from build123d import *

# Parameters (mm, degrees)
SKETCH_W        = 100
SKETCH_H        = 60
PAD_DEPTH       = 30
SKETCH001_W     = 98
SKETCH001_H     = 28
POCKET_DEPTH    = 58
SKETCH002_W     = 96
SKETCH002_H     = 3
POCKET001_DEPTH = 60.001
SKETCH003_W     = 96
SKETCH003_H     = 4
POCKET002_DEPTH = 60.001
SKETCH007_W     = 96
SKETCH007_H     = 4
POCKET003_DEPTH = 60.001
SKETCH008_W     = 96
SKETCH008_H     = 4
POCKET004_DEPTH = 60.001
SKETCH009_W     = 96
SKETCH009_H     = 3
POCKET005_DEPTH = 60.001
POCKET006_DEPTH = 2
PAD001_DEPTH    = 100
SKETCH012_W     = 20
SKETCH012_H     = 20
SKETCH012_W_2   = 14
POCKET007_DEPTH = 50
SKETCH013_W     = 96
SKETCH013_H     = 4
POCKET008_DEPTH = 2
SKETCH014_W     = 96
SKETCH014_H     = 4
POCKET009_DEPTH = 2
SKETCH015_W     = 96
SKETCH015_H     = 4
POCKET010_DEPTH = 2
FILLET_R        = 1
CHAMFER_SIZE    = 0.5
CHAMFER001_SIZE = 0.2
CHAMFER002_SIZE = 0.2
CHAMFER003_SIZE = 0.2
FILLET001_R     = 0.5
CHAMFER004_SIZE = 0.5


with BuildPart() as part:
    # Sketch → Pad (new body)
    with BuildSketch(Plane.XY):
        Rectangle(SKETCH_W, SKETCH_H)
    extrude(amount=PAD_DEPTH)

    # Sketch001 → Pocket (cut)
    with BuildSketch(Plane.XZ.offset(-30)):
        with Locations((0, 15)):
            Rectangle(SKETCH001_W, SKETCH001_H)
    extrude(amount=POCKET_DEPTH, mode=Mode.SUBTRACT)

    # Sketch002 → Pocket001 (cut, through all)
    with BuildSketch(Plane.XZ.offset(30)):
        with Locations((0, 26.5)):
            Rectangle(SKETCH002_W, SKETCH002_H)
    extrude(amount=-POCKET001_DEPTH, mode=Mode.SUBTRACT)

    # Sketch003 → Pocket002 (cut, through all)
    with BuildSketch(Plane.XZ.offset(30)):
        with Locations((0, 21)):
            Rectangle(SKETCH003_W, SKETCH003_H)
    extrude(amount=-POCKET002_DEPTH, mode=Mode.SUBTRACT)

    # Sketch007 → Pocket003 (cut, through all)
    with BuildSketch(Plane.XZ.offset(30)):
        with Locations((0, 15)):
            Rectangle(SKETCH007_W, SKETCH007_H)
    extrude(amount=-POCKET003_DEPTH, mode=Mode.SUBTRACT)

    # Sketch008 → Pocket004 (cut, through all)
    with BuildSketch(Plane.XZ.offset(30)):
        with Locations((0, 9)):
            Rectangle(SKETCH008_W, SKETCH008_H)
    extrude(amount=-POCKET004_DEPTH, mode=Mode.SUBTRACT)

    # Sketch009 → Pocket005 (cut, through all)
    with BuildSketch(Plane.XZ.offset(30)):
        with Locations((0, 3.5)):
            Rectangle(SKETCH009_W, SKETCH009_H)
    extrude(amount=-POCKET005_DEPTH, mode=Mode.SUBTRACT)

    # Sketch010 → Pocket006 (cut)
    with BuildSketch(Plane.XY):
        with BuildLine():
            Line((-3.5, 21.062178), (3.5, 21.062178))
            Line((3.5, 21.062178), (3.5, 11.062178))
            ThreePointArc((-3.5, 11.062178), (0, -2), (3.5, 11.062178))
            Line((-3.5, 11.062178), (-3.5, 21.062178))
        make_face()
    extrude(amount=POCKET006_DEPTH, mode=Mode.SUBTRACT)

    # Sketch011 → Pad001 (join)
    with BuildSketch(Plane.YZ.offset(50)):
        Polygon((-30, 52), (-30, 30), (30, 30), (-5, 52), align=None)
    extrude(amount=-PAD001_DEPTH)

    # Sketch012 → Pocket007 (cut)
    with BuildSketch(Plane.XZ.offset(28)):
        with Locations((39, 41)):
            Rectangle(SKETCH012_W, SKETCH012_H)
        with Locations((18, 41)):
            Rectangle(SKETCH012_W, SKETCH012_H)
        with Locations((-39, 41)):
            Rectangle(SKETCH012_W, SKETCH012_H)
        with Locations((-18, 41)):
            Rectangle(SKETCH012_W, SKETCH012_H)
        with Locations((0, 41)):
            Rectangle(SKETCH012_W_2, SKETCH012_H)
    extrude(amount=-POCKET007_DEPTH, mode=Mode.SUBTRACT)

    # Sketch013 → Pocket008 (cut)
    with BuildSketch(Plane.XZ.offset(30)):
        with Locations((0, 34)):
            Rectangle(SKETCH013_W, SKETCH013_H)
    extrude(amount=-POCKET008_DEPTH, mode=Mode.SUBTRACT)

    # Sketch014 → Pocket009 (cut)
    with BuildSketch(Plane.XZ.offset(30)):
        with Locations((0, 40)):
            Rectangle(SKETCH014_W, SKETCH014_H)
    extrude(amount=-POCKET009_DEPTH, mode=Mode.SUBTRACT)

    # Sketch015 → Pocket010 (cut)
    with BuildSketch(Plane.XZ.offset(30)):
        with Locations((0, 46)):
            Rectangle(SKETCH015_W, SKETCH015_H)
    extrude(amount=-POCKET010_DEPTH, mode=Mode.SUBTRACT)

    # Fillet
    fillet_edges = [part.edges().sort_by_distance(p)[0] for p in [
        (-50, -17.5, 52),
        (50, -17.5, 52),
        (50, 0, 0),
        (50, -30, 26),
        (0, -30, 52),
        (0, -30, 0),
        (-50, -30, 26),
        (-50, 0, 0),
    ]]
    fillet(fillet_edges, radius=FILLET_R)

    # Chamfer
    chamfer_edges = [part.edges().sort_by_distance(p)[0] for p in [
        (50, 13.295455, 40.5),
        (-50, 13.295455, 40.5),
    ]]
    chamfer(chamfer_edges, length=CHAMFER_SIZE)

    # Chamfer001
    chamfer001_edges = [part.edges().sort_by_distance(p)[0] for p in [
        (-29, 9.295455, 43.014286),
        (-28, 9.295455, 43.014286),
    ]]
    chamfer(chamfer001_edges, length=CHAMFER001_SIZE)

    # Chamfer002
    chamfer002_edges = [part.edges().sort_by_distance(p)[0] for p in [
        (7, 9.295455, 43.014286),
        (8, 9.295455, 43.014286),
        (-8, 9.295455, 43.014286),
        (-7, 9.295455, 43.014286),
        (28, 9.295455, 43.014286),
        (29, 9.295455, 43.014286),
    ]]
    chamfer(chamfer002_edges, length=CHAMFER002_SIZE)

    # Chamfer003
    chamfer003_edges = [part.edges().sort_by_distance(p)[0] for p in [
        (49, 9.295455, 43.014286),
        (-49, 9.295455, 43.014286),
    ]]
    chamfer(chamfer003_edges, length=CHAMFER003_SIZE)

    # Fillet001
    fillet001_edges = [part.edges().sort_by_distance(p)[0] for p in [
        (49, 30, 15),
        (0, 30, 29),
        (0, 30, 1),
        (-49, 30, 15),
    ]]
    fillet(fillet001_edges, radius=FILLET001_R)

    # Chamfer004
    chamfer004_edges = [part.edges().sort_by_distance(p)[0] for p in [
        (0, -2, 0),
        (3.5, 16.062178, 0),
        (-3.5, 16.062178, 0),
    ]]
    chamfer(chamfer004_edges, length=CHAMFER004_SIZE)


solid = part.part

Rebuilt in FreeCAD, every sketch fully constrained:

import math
import FreeCAD as App
import Part
import Sketcher
Q = App.Units.Quantity


def edges_at(feature, points):
    """Names of the edges that pass closest to the given points."""
    edges = feature.Shape.Edges
    near = lambda p: min(range(len(edges)), key=lambda i: edges[i].distToShape(Part.Vertex(*p))[0])
    return sorted({f"Edge{near(p) + 1}" for p in points})

doc = App.newDocument("Part")
body = doc.addObject("PartDesign::Body", "Body")

sketch1 = body.newObject("Sketcher::SketchObject", "Sketch")
sketch1.AttachmentSupport = (doc.getObject("XY_Plane"), [""])
sketch1.MapMode = "FlatFace"
sketch1.addGeometry([
    Part.LineSegment(App.Vector(-50, 30, 0), App.Vector(-50, -30, 0)),
    Part.LineSegment(App.Vector(-50, -30, 0), App.Vector(50, -30, 0)),
    Part.LineSegment(App.Vector(50, -30, 0), App.Vector(50, 30, 0)),
    Part.LineSegment(App.Vector(50, 30, 0), App.Vector(-50, 30, 0)),
], False)
sketch1.addConstraint([
    Sketcher.Constraint("Coincident", 0, 2, 1, 1),
    Sketcher.Constraint("Coincident", 1, 2, 2, 1),
    Sketcher.Constraint("Coincident", 2, 2, 3, 1),
    Sketcher.Constraint("Coincident", 3, 2, 0, 1),
    Sketcher.Constraint("Vertical", 0),
    Sketcher.Constraint("Horizontal", 1),
    Sketcher.Constraint("Vertical", 2),
    Sketcher.Constraint("Horizontal", 3),
    Sketcher.Constraint("Symmetric", 0, 2, 2, 2, -1, 1),
    Sketcher.Constraint("DistanceX", 1, 1, 1, 2, Q("100 mm")),
    Sketcher.Constraint("DistanceY", 0, 2, 0, 1, Q("60 mm")),
])
pad1 = body.newObject("PartDesign::Pad", "Pad")
pad1.Profile = sketch1
pad1.Length = 30

sketch2 = body.newObject("Sketcher::SketchObject", "Sketch001")
sketch2.AttachmentSupport = (doc.getObject("XZ_Plane"), [""])
sketch2.MapMode = "FlatFace"
sketch2.AttachmentOffset = App.Placement(App.Vector(0, 0, -30), App.Rotation())
sketch2.addGeometry([
    Part.LineSegment(App.Vector(-49, 29, 0), App.Vector(-49, 1, 0)),
    Part.LineSegment(App.Vector(-49, 1, 0), App.Vector(49, 1, 0)),
    Part.LineSegment(App.Vector(49, 1, 0), App.Vector(49, 29, 0)),
    Part.LineSegment(App.Vector(49, 29, 0), App.Vector(-49, 29, 0)),
], False)
sketch2.addConstraint([
    Sketcher.Constraint("Coincident", 0, 2, 1, 1),
    Sketcher.Constraint("Coincident", 1, 2, 2, 1),
    Sketcher.Constraint("Coincident", 2, 2, 3, 1),
    Sketcher.Constraint("Coincident", 3, 2, 0, 1),
    Sketcher.Constraint("Vertical", 0),
    Sketcher.Constraint("Horizontal", 1),
    Sketcher.Constraint("Vertical", 2),
    Sketcher.Constraint("Horizontal", 3),
    Sketcher.Constraint("DistanceX", 1, 1, 1, 2, Q("98 mm")),
    Sketcher.Constraint("DistanceY", 0, 2, 0, 1, Q("28 mm")),
    Sketcher.Constraint("DistanceX", 0, 2, -1, 1, Q("49 mm")),
    Sketcher.Constraint("DistanceY", -1, 1, 0, 2, Q("1 mm")),
])
pocket1 = body.newObject("PartDesign::Pocket", "Pocket")
pocket1.Profile = sketch2
pocket1.Length = 58
pocket1.Reversed = True

sketch3 = body.newObject("Sketcher::SketchObject", "Sketch002")
sketch3.AttachmentSupport = (doc.getObject("XZ_Plane"), [""])
sketch3.MapMode = "FlatFace"
sketch3.AttachmentOffset = App.Placement(App.Vector(0, 0, 30), App.Rotation())
sketch3.addGeometry([
    Part.LineSegment(App.Vector(-48, 28, 0), App.Vector(-48, 25, 0)),
    Part.LineSegment(App.Vector(-48, 25, 0), App.Vector(48, 25, 0)),
    Part.LineSegment(App.Vector(48, 25, 0), App.Vector(48, 28, 0)),
    Part.LineSegment(App.Vector(48, 28, 0), App.Vector(-48, 28, 0)),
], False)
sketch3.addConstraint([
    Sketcher.Constraint("Coincident", 0, 2, 1, 1),
    Sketcher.Constraint("Coincident", 1, 2, 2, 1),
    Sketcher.Constraint("Coincident", 2, 2, 3, 1),
    Sketcher.Constraint("Coincident", 3, 2, 0, 1),
    Sketcher.Constraint("Vertical", 0),
    Sketcher.Constraint("Horizontal", 1),
    Sketcher.Constraint("Vertical", 2),
    Sketcher.Constraint("Horizontal", 3),
    Sketcher.Constraint("DistanceX", 1, 1, 1, 2, Q("96 mm")),
    Sketcher.Constraint("DistanceY", 0, 2, 0, 1, Q("3 mm")),
    Sketcher.Constraint("DistanceX", 0, 2, -1, 1, Q("48 mm")),
    Sketcher.Constraint("DistanceY", -1, 1, 0, 2, Q("25 mm")),
])
pocket2 = body.newObject("PartDesign::Pocket", "Pocket001")
pocket2.Profile = sketch3
pocket2.Type = "ThroughAll"

sketch4 = body.newObject("Sketcher::SketchObject", "Sketch003")
sketch4.AttachmentSupport = (doc.getObject("XZ_Plane"), [""])
sketch4.MapMode = "FlatFace"
sketch4.AttachmentOffset = App.Placement(App.Vector(0, 0, 30), App.Rotation())
sketch4.addGeometry([
    Part.LineSegment(App.Vector(-48, 23, 0), App.Vector(-48, 19, 0)),
    Part.LineSegment(App.Vector(-48, 19, 0), App.Vector(48, 19, 0)),
    Part.LineSegment(App.Vector(48, 19, 0), App.Vector(48, 23, 0)),
    Part.LineSegment(App.Vector(48, 23, 0), App.Vector(-48, 23, 0)),
], False)
sketch4.addConstraint([
    Sketcher.Constraint("Coincident", 0, 2, 1, 1),
    Sketcher.Constraint("Coincident", 1, 2, 2, 1),
    Sketcher.Constraint("Coincident", 2, 2, 3, 1),
    Sketcher.Constraint("Coincident", 3, 2, 0, 1),
    Sketcher.Constraint("Vertical", 0),
    Sketcher.Constraint("Horizontal", 1),
    Sketcher.Constraint("Vertical", 2),
    Sketcher.Constraint("Horizontal", 3),
    Sketcher.Constraint("DistanceX", 1, 1, 1, 2, Q("96 mm")),
    Sketcher.Constraint("DistanceY", 0, 2, 0, 1, Q("4 mm")),
    Sketcher.Constraint("DistanceX", 0, 2, -1, 1, Q("48 mm")),
    Sketcher.Constraint("DistanceY", -1, 1, 0, 2, Q("19 mm")),
])
pocket3 = body.newObject("PartDesign::Pocket", "Pocket002")
pocket3.Profile = sketch4
pocket3.Type = "ThroughAll"

sketch5 = body.newObject("Sketcher::SketchObject", "Sketch004")
sketch5.AttachmentSupport = (doc.getObject("XZ_Plane"), [""])
sketch5.MapMode = "FlatFace"
sketch5.AttachmentOffset = App.Placement(App.Vector(0, 0, 30), App.Rotation())
sketch5.addGeometry([
    Part.LineSegment(App.Vector(-48, 17, 0), App.Vector(-48, 13, 0)),
    Part.LineSegment(App.Vector(-48, 13, 0), App.Vector(48, 13, 0)),
    Part.LineSegment(App.Vector(48, 13, 0), App.Vector(48, 17, 0)),
    Part.LineSegment(App.Vector(48, 17, 0), App.Vector(-48, 17, 0)),
], False)
sketch5.addConstraint([
    Sketcher.Constraint("Coincident", 0, 2, 1, 1),
    Sketcher.Constraint("Coincident", 1, 2, 2, 1),
    Sketcher.Constraint("Coincident", 2, 2, 3, 1),
    Sketcher.Constraint("Coincident", 3, 2, 0, 1),
    Sketcher.Constraint("Vertical", 0),
    Sketcher.Constraint("Horizontal", 1),
    Sketcher.Constraint("Vertical", 2),
    Sketcher.Constraint("Horizontal", 3),
    Sketcher.Constraint("DistanceX", 1, 1, 1, 2, Q("96 mm")),
    Sketcher.Constraint("DistanceY", 0, 2, 0, 1, Q("4 mm")),
    Sketcher.Constraint("DistanceX", 0, 2, -1, 1, Q("48 mm")),
    Sketcher.Constraint("DistanceY", -1, 1, 0, 2, Q("13 mm")),
])
pocket4 = body.newObject("PartDesign::Pocket", "Pocket003")
pocket4.Profile = sketch5
pocket4.Type = "ThroughAll"

sketch6 = body.newObject("Sketcher::SketchObject", "Sketch005")
sketch6.AttachmentSupport = (doc.getObject("XZ_Plane"), [""])
sketch6.MapMode = "FlatFace"
sketch6.AttachmentOffset = App.Placement(App.Vector(0, 0, 30), App.Rotation())
sketch6.addGeometry([
    Part.LineSegment(App.Vector(-48, 11, 0), App.Vector(-48, 7, 0)),
    Part.LineSegment(App.Vector(-48, 7, 0), App.Vector(48, 7, 0)),
    Part.LineSegment(App.Vector(48, 7, 0), App.Vector(48, 11, 0)),
    Part.LineSegment(App.Vector(48, 11, 0), App.Vector(-48, 11, 0)),
], False)
sketch6.addConstraint([
    Sketcher.Constraint("Coincident", 0, 2, 1, 1),
    Sketcher.Constraint("Coincident", 1, 2, 2, 1),
    Sketcher.Constraint("Coincident", 2, 2, 3, 1),
    Sketcher.Constraint("Coincident", 3, 2, 0, 1),
    Sketcher.Constraint("Vertical", 0),
    Sketcher.Constraint("Horizontal", 1),
    Sketcher.Constraint("Vertical", 2),
    Sketcher.Constraint("Horizontal", 3),
    Sketcher.Constraint("DistanceX", 1, 1, 1, 2, Q("96 mm")),
    Sketcher.Constraint("DistanceY", 0, 2, 0, 1, Q("4 mm")),
    Sketcher.Constraint("DistanceX", 0, 2, -1, 1, Q("48 mm")),
    Sketcher.Constraint("DistanceY", -1, 1, 0, 2, Q("7 mm")),
])
pocket5 = body.newObject("PartDesign::Pocket", "Pocket004")
pocket5.Profile = sketch6
pocket5.Type = "ThroughAll"

sketch7 = body.newObject("Sketcher::SketchObject", "Sketch006")
sketch7.AttachmentSupport = (doc.getObject("XZ_Plane"), [""])
sketch7.MapMode = "FlatFace"
sketch7.AttachmentOffset = App.Placement(App.Vector(0, 0, 30), App.Rotation())
sketch7.addGeometry([
    Part.LineSegment(App.Vector(-48, 5, 0), App.Vector(-48, 2, 0)),
    Part.LineSegment(App.Vector(-48, 2, 0), App.Vector(48, 2, 0)),
    Part.LineSegment(App.Vector(48, 2, 0), App.Vector(48, 5, 0)),
    Part.LineSegment(App.Vector(48, 5, 0), App.Vector(-48, 5, 0)),
], False)
sketch7.addConstraint([
    Sketcher.Constraint("Coincident", 0, 2, 1, 1),
    Sketcher.Constraint("Coincident", 1, 2, 2, 1),
    Sketcher.Constraint("Coincident", 2, 2, 3, 1),
    Sketcher.Constraint("Coincident", 3, 2, 0, 1),
    Sketcher.Constraint("Vertical", 0),
    Sketcher.Constraint("Horizontal", 1),
    Sketcher.Constraint("Vertical", 2),
    Sketcher.Constraint("Horizontal", 3),
    Sketcher.Constraint("DistanceX", 1, 1, 1, 2, Q("96 mm")),
    Sketcher.Constraint("DistanceY", 0, 2, 0, 1, Q("3 mm")),
    Sketcher.Constraint("DistanceX", 0, 2, -1, 1, Q("48 mm")),
    Sketcher.Constraint("DistanceY", -1, 1, 0, 2, Q("2 mm")),
])
pocket6 = body.newObject("PartDesign::Pocket", "Pocket005")
pocket6.Profile = sketch7
pocket6.Type = "ThroughAll"

sketch8 = body.newObject("Sketcher::SketchObject", "Sketch007")
sketch8.AttachmentSupport = (doc.getObject("XY_Plane"), [""])
sketch8.MapMode = "FlatFace"
sketch8.addGeometry([
    Part.LineSegment(App.Vector(4, 21, 0), App.Vector(-4, 21, 0)),
    Part.LineSegment(App.Vector(-4, 21, 0), App.Vector(-4, 11, 0)),
    Part.ArcOfCircle(Part.Circle(App.Vector(0, 5, 0), App.Vector(0, 0, 1), 7), math.radians(120), math.radians(420)),
    Part.LineSegment(App.Vector(4, 11, 0), App.Vector(4, 21, 0)),
], False)
sketch8.addConstraint([
    Sketcher.Constraint("Coincident", 0, 2, 1, 1),
    Sketcher.Constraint("Coincident", 1, 2, 2, 1),
    Sketcher.Constraint("Coincident", 2, 2, 3, 1),
    Sketcher.Constraint("Coincident", 3, 2, 0, 1),
    Sketcher.Constraint("Horizontal", 0),
    Sketcher.Constraint("Vertical", 1),
    Sketcher.Constraint("Vertical", 3),
    Sketcher.Constraint("Symmetric", 1, 2, 2, 2, -2),
    Sketcher.Constraint("Radius", 2, Q("7 mm")),
    Sketcher.Constraint("DistanceX", 0, 2, 0, 1, Q("7 mm")),
    Sketcher.Constraint("DistanceY", 1, 2, 1, 1, Q("10 mm")),
    Sketcher.Constraint("DistanceY", -1, 1, 2, 3, Q("5 mm")),
])
pocket7 = body.newObject("PartDesign::Pocket", "Pocket006")
pocket7.Profile = sketch8
pocket7.Length = 2
pocket7.Reversed = True

sketch9 = body.newObject("Sketcher::SketchObject", "Sketch008")
sketch9.AttachmentSupport = (doc.getObject("YZ_Plane"), [""])
sketch9.MapMode = "FlatFace"
sketch9.AttachmentOffset = App.Placement(App.Vector(0, 0, 50), App.Rotation())
sketch9.addGeometry([
    Part.LineSegment(App.Vector(-30, 52, 0), App.Vector(-30, 30, 0)),
    Part.LineSegment(App.Vector(-30, 30, 0), App.Vector(30, 30, 0)),
    Part.LineSegment(App.Vector(30, 30, 0), App.Vector(-5, 52, 0)),
    Part.LineSegment(App.Vector(-5, 52, 0), App.Vector(-30, 52, 0)),
], False)
sketch9.addConstraint([
    Sketcher.Constraint("Coincident", 0, 2, 1, 1),
    Sketcher.Constraint("Coincident", 1, 2, 2, 1),
    Sketcher.Constraint("Coincident", 2, 2, 3, 1),
    Sketcher.Constraint("Coincident", 3, 2, 0, 1),
    Sketcher.Constraint("Vertical", 0),
    Sketcher.Constraint("Horizontal", 1),
    Sketcher.Constraint("Horizontal", 3),
    Sketcher.Constraint("DistanceX", 1, 1, 1, 2, Q("60 mm")),
    Sketcher.Constraint("DistanceX", 3, 2, 3, 1, Q("25 mm")),
    Sketcher.Constraint("DistanceY", 0, 2, 0, 1, Q("22 mm")),
    Sketcher.Constraint("DistanceX", 0, 2, -1, 1, Q("30 mm")),
    Sketcher.Constraint("DistanceY", -1, 1, 0, 2, Q("30 mm")),
])
pad2 = body.newObject("PartDesign::Pad", "Pad001")
pad2.Profile = sketch9
pad2.Length = 100
pad2.Reversed = True

sketch10 = body.newObject("Sketcher::SketchObject", "Sketch009")
sketch10.AttachmentSupport = (doc.getObject("XZ_Plane"), [""])
sketch10.MapMode = "FlatFace"
sketch10.AttachmentOffset = App.Placement(App.Vector(0, 0, 28), App.Rotation())
sketch10.addGeometry([
    Part.LineSegment(App.Vector(29, 51, 0), App.Vector(29, 31, 0)),
    Part.LineSegment(App.Vector(29, 31, 0), App.Vector(49, 31, 0)),
    Part.LineSegment(App.Vector(49, 31, 0), App.Vector(49, 51, 0)),
    Part.LineSegment(App.Vector(49, 51, 0), App.Vector(29, 51, 0)),
    Part.LineSegment(App.Vector(8, 51, 0), App.Vector(8, 31, 0)),
    Part.LineSegment(App.Vector(8, 31, 0), App.Vector(28, 31, 0)),
    Part.LineSegment(App.Vector(28, 31, 0), App.Vector(28, 51, 0)),
    Part.LineSegment(App.Vector(28, 51, 0), App.Vector(8, 51, 0)),
    Part.LineSegment(App.Vector(-49, 51, 0), App.Vector(-49, 31, 0)),
    Part.LineSegment(App.Vector(-49, 31, 0), App.Vector(-29, 31, 0)),
    Part.LineSegment(App.Vector(-29, 31, 0), App.Vector(-29, 51, 0)),
    Part.LineSegment(App.Vector(-29, 51, 0), App.Vector(-49, 51, 0)),
    Part.LineSegment(App.Vector(-28, 51, 0), App.Vector(-28, 31, 0)),
    Part.LineSegment(App.Vector(-28, 31, 0), App.Vector(-8, 31, 0)),
    Part.LineSegment(App.Vector(-8, 31, 0), App.Vector(-8, 51, 0)),
    Part.LineSegment(App.Vector(-8, 51, 0), App.Vector(-28, 51, 0)),
    Part.LineSegment(App.Vector(-7, 51, 0), App.Vector(-7, 31, 0)),
    Part.LineSegment(App.Vector(-7, 31, 0), App.Vector(7, 31, 0)),
    Part.LineSegment(App.Vector(7, 31, 0), App.Vector(7, 51, 0)),
    Part.LineSegment(App.Vector(7, 51, 0), App.Vector(-7, 51, 0)),
], False)
sketch10.addConstraint([
    Sketcher.Constraint("Coincident", 0, 2, 1, 1),
    Sketcher.Constraint("Coincident", 1, 2, 2, 1),
    Sketcher.Constraint("Coincident", 2, 2, 3, 1),
    Sketcher.Constraint("Coincident", 3, 2, 0, 1),
    Sketcher.Constraint("Coincident", 4, 2, 5, 1),
    Sketcher.Constraint("Coincident", 5, 2, 6, 1),
    Sketcher.Constraint("Coincident", 6, 2, 7, 1),
    Sketcher.Constraint("Coincident", 7, 2, 4, 1),
    Sketcher.Constraint("Coincident", 8, 2, 9, 1),
    Sketcher.Constraint("Coincident", 9, 2, 10, 1),
    Sketcher.Constraint("Coincident", 10, 2, 11, 1),
    Sketcher.Constraint("Coincident", 11, 2, 8, 1),
    Sketcher.Constraint("Coincident", 12, 2, 13, 1),
    Sketcher.Constraint("Coincident", 13, 2, 14, 1),
    Sketcher.Constraint("Coincident", 14, 2, 15, 1),
    Sketcher.Constraint("Coincident", 15, 2, 12, 1),
    Sketcher.Constraint("Coincident", 16, 2, 17, 1),
    Sketcher.Constraint("Coincident", 17, 2, 18, 1),
    Sketcher.Constraint("Coincident", 18, 2, 19, 1),
    Sketcher.Constraint("Coincident", 19, 2, 16, 1),
    Sketcher.Constraint("Vertical", 0),
    Sketcher.Constraint("Horizontal", 1),
    Sketcher.Constraint("Vertical", 2),
    Sketcher.Constraint("Horizontal", 3),
    Sketcher.Constraint("Vertical", 4),
    Sketcher.Constraint("Horizontal", 5),
    Sketcher.Constraint("Vertical", 6),
    Sketcher.Constraint("Horizontal", 7),
    Sketcher.Constraint("Vertical", 8),
    Sketcher.Constraint("Horizontal", 9),
    Sketcher.Constraint("Vertical", 10),
    Sketcher.Constraint("Horizontal", 11),
    Sketcher.Constraint("Vertical", 12),
    Sketcher.Constraint("Horizontal", 13),
    Sketcher.Constraint("Vertical", 14),
    Sketcher.Constraint("Horizontal", 15),
    Sketcher.Constraint("Vertical", 16),
    Sketcher.Constraint("Horizontal", 17),
    Sketcher.Constraint("Vertical", 18),
    Sketcher.Constraint("Horizontal", 19),
    Sketcher.Constraint("Symmetric", 1, 2, 8, 2, -2),
    Sketcher.Constraint("Symmetric", 3, 2, 10, 2, -2),
    Sketcher.Constraint("Symmetric", 5, 2, 12, 2, -2),
    Sketcher.Constraint("Symmetric", 7, 2, 14, 2, -2),
    Sketcher.Constraint("Horizontal", 1, 2, 4, 2),
    Sketcher.Constraint("Horizontal", 3, 2, 6, 2),
    Sketcher.Constraint("Horizontal", 13, 2, 16, 2),
    Sketcher.Constraint("Horizontal", 15, 2, 18, 2),
    Sketcher.Constraint("Equal", 3, 5),
    Sketcher.Constraint("Equal", 15, 0),
    Sketcher.Constraint("DistanceX", 1, 1, 1, 2, Q("20 mm")),
    Sketcher.Constraint("DistanceX", 17, 1, 17, 2, Q("14 mm")),
    Sketcher.Constraint("DistanceX", -1, 1, 0, 2, Q("29 mm")),
    Sketcher.Constraint("DistanceY", -1, 1, 0, 2, Q("31 mm")),
    Sketcher.Constraint("DistanceX", -1, 1, 4, 2, Q("8 mm")),
    Sketcher.Constraint("DistanceX", 16, 2, -1, 1, Q("7 mm")),
])
pocket8 = body.newObject("PartDesign::Pocket", "Pocket007")
pocket8.Profile = sketch10
pocket8.Length = 50

sketch11 = body.newObject("Sketcher::SketchObject", "Sketch010")
sketch11.AttachmentSupport = (doc.getObject("XZ_Plane"), [""])
sketch11.MapMode = "FlatFace"
sketch11.AttachmentOffset = App.Placement(App.Vector(0, 0, 30), App.Rotation())
sketch11.addGeometry([
    Part.LineSegment(App.Vector(-48, 36, 0), App.Vector(-48, 32, 0)),
    Part.LineSegment(App.Vector(-48, 32, 0), App.Vector(48, 32, 0)),
    Part.LineSegment(App.Vector(48, 32, 0), App.Vector(48, 36, 0)),
    Part.LineSegment(App.Vector(48, 36, 0), App.Vector(-48, 36, 0)),
], False)
sketch11.addConstraint([
    Sketcher.Constraint("Coincident", 0, 2, 1, 1),
    Sketcher.Constraint("Coincident", 1, 2, 2, 1),
    Sketcher.Constraint("Coincident", 2, 2, 3, 1),
    Sketcher.Constraint("Coincident", 3, 2, 0, 1),
    Sketcher.Constraint("Vertical", 0),
    Sketcher.Constraint("Horizontal", 1),
    Sketcher.Constraint("Vertical", 2),
    Sketcher.Constraint("Horizontal", 3),
    Sketcher.Constraint("DistanceX", 1, 1, 1, 2, Q("96 mm")),
    Sketcher.Constraint("DistanceY", 0, 2, 0, 1, Q("4 mm")),
    Sketcher.Constraint("DistanceX", 0, 2, -1, 1, Q("48 mm")),
    Sketcher.Constraint("DistanceY", -1, 1, 0, 2, Q("32 mm")),
])
pocket9 = body.newObject("PartDesign::Pocket", "Pocket008")
pocket9.Profile = sketch11
pocket9.Length = 2

sketch12 = body.newObject("Sketcher::SketchObject", "Sketch011")
sketch12.AttachmentSupport = (doc.getObject("XZ_Plane"), [""])
sketch12.MapMode = "FlatFace"
sketch12.AttachmentOffset = App.Placement(App.Vector(0, 0, 30), App.Rotation())
sketch12.addGeometry([
    Part.LineSegment(App.Vector(-48, 42, 0), App.Vector(-48, 38, 0)),
    Part.LineSegment(App.Vector(-48, 38, 0), App.Vector(48, 38, 0)),
    Part.LineSegment(App.Vector(48, 38, 0), App.Vector(48, 42, 0)),
    Part.LineSegment(App.Vector(48, 42, 0), App.Vector(-48, 42, 0)),
], False)
sketch12.addConstraint([
    Sketcher.Constraint("Coincident", 0, 2, 1, 1),
    Sketcher.Constraint("Coincident", 1, 2, 2, 1),
    Sketcher.Constraint("Coincident", 2, 2, 3, 1),
    Sketcher.Constraint("Coincident", 3, 2, 0, 1),
    Sketcher.Constraint("Vertical", 0),
    Sketcher.Constraint("Horizontal", 1),
    Sketcher.Constraint("Vertical", 2),
    Sketcher.Constraint("Horizontal", 3),
    Sketcher.Constraint("DistanceX", 1, 1, 1, 2, Q("96 mm")),
    Sketcher.Constraint("DistanceY", 0, 2, 0, 1, Q("4 mm")),
    Sketcher.Constraint("DistanceX", 0, 2, -1, 1, Q("48 mm")),
    Sketcher.Constraint("DistanceY", -1, 1, 0, 2, Q("38 mm")),
])
pocket10 = body.newObject("PartDesign::Pocket", "Pocket009")
pocket10.Profile = sketch12
pocket10.Length = 2

sketch13 = body.newObject("Sketcher::SketchObject", "Sketch012")
sketch13.AttachmentSupport = (doc.getObject("XZ_Plane"), [""])
sketch13.MapMode = "FlatFace"
sketch13.AttachmentOffset = App.Placement(App.Vector(0, 0, 30), App.Rotation())
sketch13.addGeometry([
    Part.LineSegment(App.Vector(-48, 48, 0), App.Vector(-48, 44, 0)),
    Part.LineSegment(App.Vector(-48, 44, 0), App.Vector(48, 44, 0)),
    Part.LineSegment(App.Vector(48, 44, 0), App.Vector(48, 48, 0)),
    Part.LineSegment(App.Vector(48, 48, 0), App.Vector(-48, 48, 0)),
], False)
sketch13.addConstraint([
    Sketcher.Constraint("Coincident", 0, 2, 1, 1),
    Sketcher.Constraint("Coincident", 1, 2, 2, 1),
    Sketcher.Constraint("Coincident", 2, 2, 3, 1),
    Sketcher.Constraint("Coincident", 3, 2, 0, 1),
    Sketcher.Constraint("Vertical", 0),
    Sketcher.Constraint("Horizontal", 1),
    Sketcher.Constraint("Vertical", 2),
    Sketcher.Constraint("Horizontal", 3),
    Sketcher.Constraint("DistanceX", 1, 1, 1, 2, Q("96 mm")),
    Sketcher.Constraint("DistanceY", 0, 2, 0, 1, Q("4 mm")),
    Sketcher.Constraint("DistanceX", 0, 2, -1, 1, Q("48 mm")),
    Sketcher.Constraint("DistanceY", -1, 1, 0, 2, Q("44 mm")),
])
pocket11 = body.newObject("PartDesign::Pocket", "Pocket010")
pocket11.Profile = sketch13
pocket11.Length = 2
doc.recompute()

fillet = body.newObject("PartDesign::Fillet", "Fillet")
fillet.Base = (pocket11, edges_at(pocket11, [
    (-50, -17.5, 52),
    (50, -17.5, 52),
    (50, 0, 0),
    (50, -30, 26),
    (0, -30, 52),
    (0, -30, 0),
    (-50, -30, 26),
    (-50, 0, 0),
]))
fillet.Radius = 1
doc.recompute()

chamfer = body.newObject("PartDesign::Chamfer", "Chamfer")
chamfer.Base = (fillet, edges_at(fillet, [(50, 13.295, 40.5), (-50, 13.295, 40.5)]))
chamfer.Size = 0.5
doc.recompute()

chamfer2 = body.newObject("PartDesign::Chamfer", "Chamfer001")
chamfer2.Base = (chamfer, edges_at(chamfer, [(-29, 9.295, 43.014), (-28, 9.295, 43.014)]))
chamfer2.Size = 0.2
doc.recompute()

chamfer3 = body.newObject("PartDesign::Chamfer", "Chamfer002")
chamfer3.Base = (chamfer2, edges_at(chamfer2, [
    (7, 9.295, 43.014),
    (8, 9.295, 43.014),
    (-8, 9.295, 43.014),
    (-7, 9.295, 43.014),
    (28, 9.295, 43.014),
    (29, 9.295, 43.014),
]))
chamfer3.Size = 0.2
doc.recompute()

chamfer4 = body.newObject("PartDesign::Chamfer", "Chamfer003")
chamfer4.Base = (chamfer3, edges_at(chamfer3, [(49, 9.295, 43.014), (-49, 9.295, 43.014)]))
chamfer4.Size = 0.2
doc.recompute()

fillet2 = body.newObject("PartDesign::Fillet", "Fillet001")
fillet2.Base = (chamfer4, edges_at(chamfer4, [
    (49, 30, 15),
    (0, 30, 29),
    (0, 30, 1),
    (-49, 30, 15),
]))
fillet2.Radius = 0.5
doc.recompute()

chamfer5 = body.newObject("PartDesign::Chamfer", "Chamfer004")
chamfer5.Base = (fillet2, edges_at(fillet2, [(0, -2, 0), (3.5, 16.062, 0), (-3.5, 16.062, 0)]))
chamfer5.Size = 0.5

doc.recompute()
